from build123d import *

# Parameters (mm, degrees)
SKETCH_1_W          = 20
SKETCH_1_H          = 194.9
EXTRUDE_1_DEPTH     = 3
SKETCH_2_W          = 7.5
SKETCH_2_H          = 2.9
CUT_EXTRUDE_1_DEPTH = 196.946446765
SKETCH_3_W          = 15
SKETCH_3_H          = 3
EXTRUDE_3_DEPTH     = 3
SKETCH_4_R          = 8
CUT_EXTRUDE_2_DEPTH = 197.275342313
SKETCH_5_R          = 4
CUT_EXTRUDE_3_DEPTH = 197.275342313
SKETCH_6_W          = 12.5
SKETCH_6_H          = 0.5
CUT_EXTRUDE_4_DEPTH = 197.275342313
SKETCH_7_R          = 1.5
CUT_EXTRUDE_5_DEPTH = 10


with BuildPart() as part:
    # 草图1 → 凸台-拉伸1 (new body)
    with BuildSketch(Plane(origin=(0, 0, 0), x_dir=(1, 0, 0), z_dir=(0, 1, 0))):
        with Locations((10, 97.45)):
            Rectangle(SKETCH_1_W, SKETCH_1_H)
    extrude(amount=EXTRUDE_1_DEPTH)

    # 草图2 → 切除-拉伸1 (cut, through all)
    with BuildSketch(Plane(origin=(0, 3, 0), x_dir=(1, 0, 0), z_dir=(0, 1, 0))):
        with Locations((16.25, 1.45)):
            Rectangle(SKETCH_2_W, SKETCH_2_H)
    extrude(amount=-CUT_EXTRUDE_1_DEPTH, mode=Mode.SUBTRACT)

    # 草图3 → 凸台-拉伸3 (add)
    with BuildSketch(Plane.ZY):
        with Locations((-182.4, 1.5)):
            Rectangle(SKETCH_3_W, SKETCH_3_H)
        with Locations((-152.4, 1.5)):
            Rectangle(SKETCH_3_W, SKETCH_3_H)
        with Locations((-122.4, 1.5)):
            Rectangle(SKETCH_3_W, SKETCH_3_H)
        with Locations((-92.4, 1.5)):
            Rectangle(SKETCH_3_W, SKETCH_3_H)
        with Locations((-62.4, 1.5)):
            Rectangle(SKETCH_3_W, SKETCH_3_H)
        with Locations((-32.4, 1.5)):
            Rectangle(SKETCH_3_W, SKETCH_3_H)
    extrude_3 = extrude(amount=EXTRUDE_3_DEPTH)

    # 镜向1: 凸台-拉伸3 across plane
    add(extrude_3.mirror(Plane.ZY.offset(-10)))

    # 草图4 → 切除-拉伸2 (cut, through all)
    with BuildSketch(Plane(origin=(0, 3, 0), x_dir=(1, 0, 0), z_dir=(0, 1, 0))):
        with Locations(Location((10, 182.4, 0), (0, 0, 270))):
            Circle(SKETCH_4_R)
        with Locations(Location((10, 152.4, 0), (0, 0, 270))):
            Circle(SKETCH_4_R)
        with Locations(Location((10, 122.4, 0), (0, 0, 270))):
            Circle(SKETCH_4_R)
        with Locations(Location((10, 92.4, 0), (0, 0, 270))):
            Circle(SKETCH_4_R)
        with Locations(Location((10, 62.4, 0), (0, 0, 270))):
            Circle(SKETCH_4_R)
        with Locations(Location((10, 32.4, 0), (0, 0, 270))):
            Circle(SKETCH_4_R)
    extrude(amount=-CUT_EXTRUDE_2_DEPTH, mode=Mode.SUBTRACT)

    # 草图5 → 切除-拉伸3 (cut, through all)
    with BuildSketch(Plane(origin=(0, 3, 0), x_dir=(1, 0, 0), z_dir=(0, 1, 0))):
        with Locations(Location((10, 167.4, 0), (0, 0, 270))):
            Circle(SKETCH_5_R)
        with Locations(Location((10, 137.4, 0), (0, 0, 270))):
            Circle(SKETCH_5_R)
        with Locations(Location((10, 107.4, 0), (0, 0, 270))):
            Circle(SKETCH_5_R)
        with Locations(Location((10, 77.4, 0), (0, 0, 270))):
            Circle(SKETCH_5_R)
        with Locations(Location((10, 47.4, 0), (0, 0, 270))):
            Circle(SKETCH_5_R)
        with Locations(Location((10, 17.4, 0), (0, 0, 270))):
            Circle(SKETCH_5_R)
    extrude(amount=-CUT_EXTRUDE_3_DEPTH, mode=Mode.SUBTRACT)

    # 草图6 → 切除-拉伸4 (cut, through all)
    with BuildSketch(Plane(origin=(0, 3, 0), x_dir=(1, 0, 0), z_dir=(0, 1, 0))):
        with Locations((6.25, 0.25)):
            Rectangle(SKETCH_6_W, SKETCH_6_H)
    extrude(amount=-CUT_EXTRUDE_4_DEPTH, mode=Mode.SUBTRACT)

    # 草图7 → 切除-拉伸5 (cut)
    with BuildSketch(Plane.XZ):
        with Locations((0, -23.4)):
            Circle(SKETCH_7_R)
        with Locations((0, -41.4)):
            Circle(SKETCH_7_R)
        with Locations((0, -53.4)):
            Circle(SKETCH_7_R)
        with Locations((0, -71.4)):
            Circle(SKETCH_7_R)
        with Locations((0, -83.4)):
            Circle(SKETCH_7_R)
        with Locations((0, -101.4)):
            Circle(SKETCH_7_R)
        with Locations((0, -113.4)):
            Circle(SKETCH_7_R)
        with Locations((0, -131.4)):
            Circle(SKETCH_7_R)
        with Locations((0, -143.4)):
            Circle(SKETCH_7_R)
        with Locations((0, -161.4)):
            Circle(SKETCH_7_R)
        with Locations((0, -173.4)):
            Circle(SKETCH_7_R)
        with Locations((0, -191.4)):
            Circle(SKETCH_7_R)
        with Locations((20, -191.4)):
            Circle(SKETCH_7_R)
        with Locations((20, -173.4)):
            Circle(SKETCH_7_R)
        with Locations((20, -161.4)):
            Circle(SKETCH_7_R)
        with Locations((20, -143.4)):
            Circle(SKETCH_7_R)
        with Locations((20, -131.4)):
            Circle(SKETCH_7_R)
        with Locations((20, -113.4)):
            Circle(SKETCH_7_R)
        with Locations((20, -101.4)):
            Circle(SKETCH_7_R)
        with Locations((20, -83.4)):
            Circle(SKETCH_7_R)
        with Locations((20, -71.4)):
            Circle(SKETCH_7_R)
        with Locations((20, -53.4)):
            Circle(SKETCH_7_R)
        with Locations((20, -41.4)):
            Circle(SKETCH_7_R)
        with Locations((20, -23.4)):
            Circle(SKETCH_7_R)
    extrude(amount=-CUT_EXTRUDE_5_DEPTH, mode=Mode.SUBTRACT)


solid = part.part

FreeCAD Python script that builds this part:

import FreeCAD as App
import Part
import Sketcher
from FreeCAD import Vector
Q = App.Units.Quantity

doc = App.newDocument("Part")
body = doc.addObject("PartDesign::Body", "Body")

sketch1 = body.newObject("Sketcher::SketchObject", "Sketch")
sketch1.AttachmentSupport = (doc.getObject("XZ_Plane"), [""])
sketch1.MapMode = "FlatFace"
sketch1.addGeometry([
    Part.LineSegment(Vector(0, -195, 0), Vector(0, 0, 0)),
    Part.LineSegment(Vector(0, 0, 0), Vector(20, 0, 0)),
    Part.LineSegment(Vector(20, 0, 0), Vector(20, -195, 0)),
    Part.LineSegment(Vector(20, -195, 0), Vector(0, -195, 0)),
], False)
sketch1.addConstraint([
    Sketcher.Constraint("Coincident", 0, 2, 1, 1),
    Sketcher.Constraint("Coincident", 1, 2, 2, 1),
    Sketcher.Constraint("Coincident", 2, 2, 3, 1),
    Sketcher.Constraint("Coincident", 3, 2, 0, 1),
    Sketcher.Constraint("Vertical", 0),
    Sketcher.Constraint("Horizontal", 1),
    Sketcher.Constraint("Vertical", 2),
    Sketcher.Constraint("Horizontal", 3),
    Sketcher.Constraint("Coincident", 0, 2, -1, 1),
    Sketcher.Constraint("DistanceX", 1, 1, 1, 2, Q("20 mm")),
    Sketcher.Constraint("DistanceY", 0, 1, 0, 2, Q("194.9 mm")),
])
pad1 = body.newObject("PartDesign::Pad", "Pad")
pad1.Profile = sketch1
pad1.Length = 3
pad1.Reversed = True

sketch2 = body.newObject("Sketcher::SketchObject", "Sketch001")
sketch2.AttachmentSupport = (doc.getObject("XZ_Plane"), [""])
sketch2.MapMode = "FlatFace"
sketch2.AttachmentOffset = App.Placement(Vector(0, 0, -3), App.Rotation())
sketch2.addGeometry([
    Part.LineSegment(Vector(12.5, -2.9, 0), Vector(12.5, 0, 0)),
    Part.LineSegment(Vector(12.5, 0, 0), Vector(20, 0, 0)),
    Part.LineSegment(Vector(20, 0, 0), Vector(20, -2.9, 0)),
    Part.LineSegment(Vector(20, -2.9, 0), Vector(12.5, -2.9, 0)),
], False)
sketch2.addConstraint([
    Sketcher.Constraint("Coincident", 0, 2, 1, 1),
    Sketcher.Constraint("Coincident", 1, 2, 2, 1),
    Sketcher.Constraint("Coincident", 2, 2, 3, 1),
    Sketcher.Constraint("Coincident", 3, 2, 0, 1),
    Sketcher.Constraint("Vertical", 0),
    Sketcher.Constraint("Horizontal", 1),
    Sketcher.Constraint("Vertical", 2),
    Sketcher.Constraint("Horizontal", 3),
    Sketcher.Constraint("PointOnObject", 0, 2, -1),
    Sketcher.Constraint("DistanceX", 1, 1, 1, 2, Q("7.5 mm")),
    Sketcher.Constraint("DistanceY", 0, 1, 0, 2, Q("2.9 mm")),
    Sketcher.Constraint("DistanceX", -1, 1, 1, 2, Q("20 mm")),
])
pocket1 = body.newObject("PartDesign::Pocket", "Pocket")
pocket1.Profile = sketch2
pocket1.Type = "ThroughAll"
pocket1.Reversed = True

sketch3 = body.newObject("Sketcher::SketchObject", "Sketch002")
sketch3.AttachmentSupport = (doc.getObject("YZ_Plane"), [""])
sketch3.MapMode = "FlatFace"
sketch3.addGeometry([
    Part.LineSegment(Vector(3, -189.9, 0), Vector(0, -189.9, 0)),
    Part.LineSegment(Vector(0, -189.9, 0), Vector(0, -174.9, 0)),
    Part.LineSegment(Vector(0, -174.9, 0), Vector(3, -174.9, 0)),
    Part.LineSegment(Vector(3, -174.9, 0), Vector(3, -189.9, 0)),
    Part.LineSegment(Vector(3, -159.9, 0), Vector(0, -159.9, 0)),
    Part.LineSegment(Vector(0, -159.9, 0), Vector(0, -144.9, 0)),
    Part.LineSegment(Vector(0, -144.9, 0), Vector(3, -144.9, 0)),
    Part.LineSegment(Vector(3, -144.9, 0), Vector(3, -159.9, 0)),
    Part.LineSegment(Vector(3, -129.9, 0), Vector(0, -129.9, 0)),
    Part.LineSegment(Vector(0, -129.9, 0), Vector(0, -114.9, 0)),
    Part.LineSegment(Vector(0, -114.9, 0), Vector(3, -114.9, 0)),
    Part.LineSegment(Vector(3, -114.9, 0), Vector(3, -129.9, 0)),
    Part.LineSegment(Vector(3, -99.9, 0), Vector(0, -99.9, 0)),
    Part.LineSegment(Vector(0, -99.9, 0), Vector(0, -84.9, 0)),
    Part.LineSegment(Vector(0, -84.9, 0), Vector(3, -84.9, 0)),
    Part.LineSegment(Vector(3, -84.9, 0), Vector(3, -99.9, 0)),
    Part.LineSegment(Vector(3, -69.9, 0), Vector(0, -69.9, 0)),
    Part.LineSegment(Vector(0, -69.9, 0), Vector(0, -54.9, 0)),
    Part.LineSegment(Vector(0, -54.9, 0), Vector(3, -54.9, 0)),
    Part.LineSegment(Vector(3, -54.9, 0), Vector(3, -69.9, 0)),
    Part.LineSegment(Vector(3, -39.9, 0), Vector(0, -39.9, 0)),
    Part.LineSegment(Vector(0, -39.9, 0), Vector(0, -24.9, 0)),
    Part.LineSegment(Vector(0, -24.9, 0), Vector(3, -24.9, 0)),
    Part.LineSegment(Vector(3, -24.9, 0), Vector(3, -39.9, 0)),
], False)
sketch3.addConstraint([
    Sketcher.Constraint("Coincident", 0, 2, 1, 1),
    Sketcher.Constraint("Coincident", 1, 2, 2, 1),
    Sketcher.Constraint("Coincident", 2, 2, 3, 1),
    Sketcher.Constraint("Coincident", 3, 2, 0, 1),
    Sketcher.Constraint("Coincident", 4, 2, 5, 1),
    Sketcher.Constraint("Coincident", 5, 2, 6, 1),
    Sketcher.Constraint("Coincident", 6, 2, 7, 1),
    Sketcher.Constraint("Coincident", 7, 2, 4, 1),
    Sketcher.Constraint("Coincident", 8, 2, 9, 1),
    Sketcher.Constraint("Coincident", 9, 2, 10, 1),
    Sketcher.Constraint("Coincident", 10, 2, 11, 1),
    Sketcher.Constraint("Coincident", 11, 2, 8, 1),
    Sketcher.Constraint("Coincident", 12, 2, 13, 1),
    Sketcher.Constraint("Coincident", 13, 2, 14, 1),
    Sketcher.Constraint("Coincident", 14, 2, 15, 1),
    Sketcher.Constraint("Coincident", 15, 2, 12, 1),
    Sketcher.Constraint("Coincident", 16, 2, 17, 1),
    Sketcher.Constraint("Coincident", 17, 2, 18, 1),
    Sketcher.Constraint("Coincident", 18, 2, 19, 1),
    Sketcher.Constraint("Coincident", 19, 2, 16, 1),
    Sketcher.Constraint("Coincident", 20, 2, 21, 1),
    Sketcher.Constraint("Coincident", 21, 2, 22, 1),
    Sketcher.Constraint("Coincident", 22, 2, 23, 1),
    Sketcher.Constraint("Coincident", 23, 2, 20, 1),
    Sketcher.Constraint("Horizontal", 0),
    Sketcher.Constraint("Vertical", 1),
    Sketcher.Constraint("Horizontal", 2),
    Sketcher.Constraint("Vertical", 3),
    Sketcher.Constraint("Horizontal", 4),
    Sketcher.Constraint("Vertical", 5),
    Sketcher.Constraint("Horizontal", 6),
    Sketcher.Constraint("Vertical", 7),
    Sketcher.Constraint("Horizontal", 8),
    Sketcher.Constraint("Vertical", 9),
    Sketcher.Constraint("Horizontal", 10),
    Sketcher.Constraint("Vertical", 11),
    Sketcher.Constraint("Horizontal", 12),
    Sketcher.Constraint("Vertical", 13),
    Sketcher.Constraint("Horizontal", 14),
    Sketcher.Constraint("Vertical", 15),
    Sketcher.Constraint("Horizontal", 16),
    Sketcher.Constraint("Vertical", 17),
    Sketcher.Constraint("Horizontal", 18),
    Sketcher.Constraint("Vertical", 19),
    Sketcher.Constraint("Horizontal", 20),
    Sketcher.Constraint("Vertical", 21),
    Sketcher.Constraint("Horizontal", 22),
    Sketcher.Constraint("Vertical", 23),
    Sketcher.Constraint("PointOnObject", 0, 2, -2),
    Sketcher.Constraint("PointOnObject", 4, 2, -2),
    Sketcher.Constraint("PointOnObject", 8, 2, -2),
    Sketcher.Constraint("PointOnObject", 12, 2, -2),
    Sketcher.Constraint("PointOnObject", 16, 2, -2),
    Sketcher.Constraint("PointOnObject", 20, 2, -2),
    Sketcher.Constraint("Vertical", 3, 2, 6, 2),
    Sketcher.Constraint("Vertical", 7, 2, 10, 2),
    Sketcher.Constraint("Vertical", 11, 2, 14, 2),
    Sketcher.Constraint("Vertical", 15, 2, 18, 2),
    Sketcher.Constraint("Vertical", 19, 2, 22, 2),
    Sketcher.Constraint("Equal", 3, 5),
    Sketcher.Constraint("Equal", 7, 9),
    Sketcher.Constraint("Equal", 11, 13),
    Sketcher.Constraint("Equal", 15, 17),
    Sketcher.Constraint("Equal", 19, 21),
    Sketcher.Constraint("DistanceX", 0, 2, 0, 1, Q("3 mm")),
    Sketcher.Constraint("DistanceY", 1, 1, 1, 2, Q("15 mm")),
    Sketcher.Constraint("DistanceY", 1, 2, 4, 2, Q("15 mm")),
    Sketcher.Constraint("DistanceY", 5, 2, 8, 2, Q("15 mm")),
    Sketcher.Constraint("DistanceY", 9, 2, 12, 2, Q("15 mm")),
    Sketcher.Constraint("DistanceY", 13, 2, 16, 2, Q("15 mm")),
    Sketcher.Constraint("DistanceY", 17, 2, 20, 2, Q("15 mm")),
    Sketcher.Constraint("DistanceY", 0, 2, -1, 1, Q("189.9 mm")),
])
pad2 = body.newObject("PartDesign::Pad", "Pad001")
pad2.Profile = sketch3
pad2.Length = 3
pad2.Reversed = True
doc.recompute()

datumplane = body.newObject("PartDesign::Plane", "DatumPlane")
datumplane.AttachmentSupport = (doc.getObject("YZ_Plane"), [""])
datumplane.MapMode = "FlatFace"
datumplane.AttachmentOffset = App.Placement(Vector(0, 0, 10), App.Rotation())
mirrored = body.newObject("PartDesign::Mirrored", "Mirrored")
mirrored.Originals = [pad2]
mirrored.MirrorPlane = (datumplane, [""])
body.Tip = mirrored

sketch4 = body.newObject("Sketcher::SketchObject", "Sketch003")
sketch4.AttachmentSupport = (doc.getObject("XZ_Plane"), [""])
sketch4.MapMode = "FlatFace"
sketch4.AttachmentOffset = App.Placement(Vector(0, 0, -3), App.Rotation())
sketch4.addGeometry([
    Part.Circle(Vector(10, -182, 0), Vector(0, 0, 1), 8),
    Part.Circle(Vector(10, -152, 0), Vector(0, 0, 1), 8),
    Part.Circle(Vector(10, -122, 0), Vector(0, 0, 1), 8),
    Part.Circle(Vector(10, -92, 0), Vector(0, 0, 1), 8),
    Part.Circle(Vector(10, -62, 0), Vector(0, 0, 1), 8),
    Part.Circle(Vector(10, -32, 0), Vector(0, 0, 1), 8),
], False)
sketch4.addConstraint([
    Sketcher.Constraint("Equal", 0, 1),
    Sketcher.Constraint("Equal", 1, 2),
    Sketcher.Constraint("Equal", 2, 3),
    Sketcher.Constraint("Equal", 3, 4),
    Sketcher.Constraint("Equal", 4, 5),
    Sketcher.Constraint("Vertical", 0, 3, 1, 3),
    Sketcher.Constraint("Vertical", 1, 3, 2, 3),
    Sketcher.Constraint("Vertical", 2, 3, 3, 3),
    Sketcher.Constraint("Vertical", 3, 3, 4, 3),
    Sketcher.Constraint("Vertical", 4, 3, 5, 3),
    Sketcher.Constraint("Diameter", 0, Q("16 mm")),
    Sketcher.Constraint("DistanceX", -1, 1, 0, 3, Q("10 mm")),
    Sketcher.Constraint("DistanceY", 0, 3, 1, 3, Q("30 mm")),
    Sketcher.Constraint("DistanceY", 1, 3, 2, 3, Q("30 mm")),
    Sketcher.Constraint("DistanceY", 2, 3, 3, 3, Q("30 mm")),
    Sketcher.Constraint("DistanceY", 3, 3, 4, 3, Q("30 mm")),
    Sketcher.Constraint("DistanceY", 4, 3, 5, 3, Q("30 mm")),
    Sketcher.Constraint("DistanceY", 0, 3, -1, 1, Q("182.4 mm")),
])
pocket2 = body.newObject("PartDesign::Pocket", "Pocket001")
pocket2.Profile = sketch4
pocket2.Type = "ThroughAll"
pocket2.Reversed = True

sketch5 = body.newObject("Sketcher::SketchObject", "Sketch004")
sketch5.AttachmentSupport = (doc.getObject("XZ_Plane"), [""])
sketch5.MapMode = "FlatFace"
sketch5.AttachmentOffset = App.Placement(Vector(0, 0, -3), App.Rotation())
sketch5.addGeometry([
    Part.Circle(Vector(10, -167.4, 0), Vector(0, 0, 1), 4),
    Part.Circle(Vector(10, -137.4, 0), Vector(0, 0, 1), 4),
    Part.Circle(Vector(10, -107.4, 0), Vector(0, 0, 1), 4),
    Part.Circle(Vector(10, -77.4, 0), Vector(0, 0, 1), 4),
    Part.Circle(Vector(10, -47.4, 0), Vector(0, 0, 1), 4),
    Part.Circle(Vector(10, -17.4, 0), Vector(0, 0, 1), 4),
], False)
sketch5.addConstraint([
    Sketcher.Constraint("Equal", 0, 1),
    Sketcher.Constraint("Equal", 1, 2),
    Sketcher.Constraint("Equal", 2, 3),
    Sketcher.Constraint("Equal", 3, 4),
    Sketcher.Constraint("Equal", 4, 5),
    Sketcher.Constraint("Vertical", 0, 3, 1, 3),
    Sketcher.Constraint("Vertical", 1, 3, 2, 3),
    Sketcher.Constraint("Vertical", 2, 3, 3, 3),
    Sketcher.Constraint("Vertical", 3, 3, 4, 3),
    Sketcher.Constraint("Vertical", 4, 3, 5, 3),
    Sketcher.Constraint("Diameter", 0, Q("8 mm")),
    Sketcher.Constraint("DistanceX", -1, 1, 0, 3, Q("10 mm")),
    Sketcher.Constraint("DistanceY", 0, 3, 1, 3, Q("30 mm")),
    Sketcher.Constraint("DistanceY", 1, 3, 2, 3, Q("30 mm")),
    Sketcher.Constraint("DistanceY", 2, 3, 3, 3, Q("30 mm")),
    Sketcher.Constraint("DistanceY", 3, 3, 4, 3, Q("30 mm")),
    Sketcher.Constraint("DistanceY", 4, 3, 5, 3, Q("30 mm")),
    Sketcher.Constraint("DistanceY", 0, 3, -1, 1, Q("167.4 mm")),
])
pocket3 = body.newObject("PartDesign::Pocket", "Pocket002")
pocket3.Profile = sketch5
pocket3.Type = "ThroughAll"
pocket3.Reversed = True

sketch6 = body.newObject("Sketcher::SketchObject", "Sketch005")
sketch6.AttachmentSupport = (doc.getObject("XZ_Plane"), [""])
sketch6.MapMode = "FlatFace"
sketch6.AttachmentOffset = App.Placement(Vector(0, 0, -3), App.Rotation())
sketch6.addGeometry([
    Part.LineSegment(Vector(0, -0.5, 0), Vector(0, 0, 0)),
    Part.LineSegment(Vector(0, 0, 0), Vector(12.5, 0, 0)),
    Part.LineSegment(Vector(12.5, 0, 0), Vector(12.5, -0.5, 0)),
    Part.LineSegment(Vector(12.5, -0.5, 0), Vector(0, -0.5, 0)),
], False)
sketch6.addConstraint([
    Sketcher.Constraint("Coincident", 0, 2, 1, 1),
    Sketcher.Constraint("Coincident", 1, 2, 2, 1),
    Sketcher.Constraint("Coincident", 2, 2, 3, 1),
    Sketcher.Constraint("Coincident", 3, 2, 0, 1),
    Sketcher.Constraint("Vertical", 0),
    Sketcher.Constraint("Horizontal", 1),
    Sketcher.Constraint("Vertical", 2),
    Sketcher.Constraint("Horizontal", 3),
    Sketcher.Constraint("Coincident", 0, 2, -1, 1),
    Sketcher.Constraint("DistanceX", 1, 1, 1, 2, Q("12.5 mm")),
    Sketcher.Constraint("DistanceY", 0, 1, 0, 2, Q("0.5 mm")),
])
pocket4 = body.newObject("PartDesign::Pocket", "Pocket003")
pocket4.Profile = sketch6
pocket4.Type = "ThroughAll"
pocket4.Reversed = True

sketch7 = body.newObject("Sketcher::SketchObject", "Sketch006")
sketch7.AttachmentSupport = (doc.getObject("XZ_Plane"), [""])
sketch7.MapMode = "FlatFace"
sketch7.addGeometry([
    Part.Circle(Vector(0, -23.4, 0), Vector(0, 0, 1), 1.5),
    Part.Circle(Vector(0, -41.4, 0), Vector(0, 0, 1), 1.5),
    Part.Circle(Vector(0, -53.4, 0), Vector(0, 0, 1), 1.5),
    Part.Circle(Vector(0, -71.4, 0), Vector(0, 0, 1), 1.5),
    Part.Circle(Vector(0, -83.4, 0), Vector(0, 0, 1), 1.5),
    Part.Circle(Vector(0, -101.4, 0), Vector(0, 0, 1), 1.5),
    Part.Circle(Vector(0, -113.4, 0), Vector(0, 0, 1), 1.5),
    Part.Circle(Vector(0, -131.4, 0), Vector(0, 0, 1), 1.5),
    Part.Circle(Vector(0, -143.4, 0), Vector(0, 0, 1), 1.5),
    Part.Circle(Vector(0, -161.4, 0), Vector(0, 0, 1), 1.5),
    Part.Circle(Vector(0, -173.4, 0), Vector(0, 0, 1), 1.5),
    Part.Circle(Vector(0, -191.4, 0), Vector(0, 0, 1), 1.5),
    Part.Circle(Vector(20, -191.4, 0), Vector(0, 0, 1), 1.5),
    Part.Circle(Vector(20, -173.4, 0), Vector(0, 0, 1), 1.5),
    Part.Circle(Vector(20, -161.4, 0), Vector(0, 0, 1), 1.5),
    Part.Circle(Vector(20, -143.4, 0), Vector(0, 0, 1), 1.5),
    Part.Circle(Vector(20, -131.4, 0), Vector(0, 0, 1), 1.5),
    Part.Circle(Vector(20, -113.4, 0), Vector(0, 0, 1), 1.5),
    Part.Circle(Vector(20, -101.4, 0), Vector(0, 0, 1), 1.5),
    Part.Circle(Vector(20, -83.4, 0), Vector(0, 0, 1), 1.5),
    Part.Circle(Vector(20, -71.4, 0), Vector(0, 0, 1), 1.5),
    Part.Circle(Vector(20, -53.4, 0), Vector(0, 0, 1), 1.5),
    Part.Circle(Vector(20, -41.4, 0), Vector(0, 0, 1), 1.5),
    Part.Circle(Vector(20, -23.4, 0), Vector(0, 0, 1), 1.5),
], False)
sketch7.addConstraint([
    Sketcher.Constraint("Equal", 0, 1),
    Sketcher.Constraint("Equal", 1, 2),
    Sketcher.Constraint("Equal", 2, 3),
    Sketcher.Constraint("Equal", 3, 4),
    Sketcher.Constraint("Equal", 4, 5),
    Sketcher.Constraint("Equal", 5, 6),
    Sketcher.Constraint("Equal", 6, 7),
    Sketcher.Constraint("Equal", 7, 8),
    Sketcher.Constraint("Equal", 8, 9),
    Sketcher.Constraint("Equal", 9, 10),
    Sketcher.Constraint("Equal", 10, 11),
    Sketcher.Constraint("Equal", 11, 12),
    Sketcher.Constraint("Equal", 12, 13),
    Sketcher.Constraint("Equal", 13, 14),
    Sketcher.Constraint("Equal", 14, 15),
    Sketcher.Constraint("Equal", 15, 16),
    Sketcher.Constraint("Equal", 16, 17),
    Sketcher.Constraint("Equal", 17, 18),
    Sketcher.Constraint("Equal", 18, 19),
    Sketcher.Constraint("Equal", 19, 20),
    Sketcher.Constraint("Equal", 20, 21),
    Sketcher.Constraint("Equal", 21, 22),
    Sketcher.Constraint("Equal", 22, 23),
    Sketcher.Constraint("PointOnObject", 0, 3, -2),
    Sketcher.Constraint("PointOnObject", 1, 3, -2),
    Sketcher.Constraint("PointOnObject", 2, 3, -2),
    Sketcher.Constraint("PointOnObject", 3, 3, -2),
    Sketcher.Constraint("PointOnObject", 4, 3, -2),
    Sketcher.Constraint("PointOnObject", 5, 3, -2),
    Sketcher.Constraint("PointOnObject", 6, 3, -2),
    Sketcher.Constraint("PointOnObject", 7, 3, -2),
    Sketcher.Constraint("PointOnObject", 8, 3, -2),
    Sketcher.Constraint("PointOnObject", 9, 3, -2),
    Sketcher.Constraint("PointOnObject", 10, 3, -2),
    Sketcher.Constraint("PointOnObject", 11, 3, -2),
    Sketcher.Constraint("Horizontal", 11, 3, 12, 3),
    Sketcher.Constraint("Horizontal", 10, 3, 13, 3),
    Sketcher.Constraint("Horizontal", 9, 3, 14, 3),
    Sketcher.Constraint("Horizontal", 8, 3, 15, 3),
    Sketcher.Constraint("Horizontal", 7, 3, 16, 3),
    Sketcher.Constraint("Horizontal", 6, 3, 17, 3),
    Sketcher.Constraint("Horizontal", 5, 3, 18, 3),
    Sketcher.Constraint("Horizontal", 4, 3, 19, 3),
    Sketcher.Constraint("Horizontal", 3, 3, 20, 3),
    Sketcher.Constraint("Horizontal", 2, 3, 21, 3),
    Sketcher.Constraint("Horizontal", 1, 3, 22, 3),
    Sketcher.Constraint("Horizontal", 0, 3, 23, 3),
    Sketcher.Constraint("Vertical", 12, 3, 13, 3),
    Sketcher.Constraint("Vertical", 13, 3, 14, 3),
    Sketcher.Constraint("Vertical", 14, 3, 15, 3),
    Sketcher.Constraint("Vertical", 15, 3, 16, 3),
    Sketcher.Constraint("Vertical", 16, 3, 17, 3),
    Sketcher.Constraint("Vertical", 17, 3, 18, 3),
    Sketcher.Constraint("Vertical", 18, 3, 19, 3),
    Sketcher.Constraint("Vertical", 19, 3, 20, 3),
    Sketcher.Constraint("Vertical", 20, 3, 21, 3),
    Sketcher.Constraint("Vertical", 21, 3, 22, 3),
    Sketcher.Constraint("Vertical", 22, 3, 23, 3),
    Sketcher.Constraint("Diameter", 0, Q("3 mm")),
    Sketcher.Constraint("DistanceX", -1, 1, 12, 3, Q("20 mm")),
    Sketcher.Constraint("DistanceY", 1, 3, 0, 3, Q("18 mm")),
    Sketcher.Constraint("DistanceY", 2, 3, 1, 3, Q("12 mm")),
    Sketcher.Constraint("DistanceY", 3, 3, 2, 3, Q("18 mm")),
    Sketcher.Constraint("DistanceY", 4, 3, 3, 3, Q("12 mm")),
    Sketcher.Constraint("DistanceY", 5, 3, 4, 3, Q("18 mm")),
    Sketcher.Constraint("DistanceY", 6, 3, 5, 3, Q("12 mm")),
    Sketcher.Constraint("DistanceY", 7, 3, 6, 3, Q("18 mm")),
    Sketcher.Constraint("DistanceY", 8, 3, 7, 3, Q("12 mm")),
    Sketcher.Constraint("DistanceY", 9, 3, 8, 3, Q("18 mm")),
    Sketcher.Constraint("DistanceY", 10, 3, 9, 3, Q("12 mm")),
    Sketcher.Constraint("DistanceY", 11, 3, 10, 3, Q("18 mm")),
    Sketcher.Constraint("DistanceY", 0, 3, -1, 1, Q("23.4 mm")),
])
pocket5 = body.newObject("PartDesign::Pocket", "Pocket004")
pocket5.Profile = sketch7
pocket5.Length = 10

doc.recompute()
